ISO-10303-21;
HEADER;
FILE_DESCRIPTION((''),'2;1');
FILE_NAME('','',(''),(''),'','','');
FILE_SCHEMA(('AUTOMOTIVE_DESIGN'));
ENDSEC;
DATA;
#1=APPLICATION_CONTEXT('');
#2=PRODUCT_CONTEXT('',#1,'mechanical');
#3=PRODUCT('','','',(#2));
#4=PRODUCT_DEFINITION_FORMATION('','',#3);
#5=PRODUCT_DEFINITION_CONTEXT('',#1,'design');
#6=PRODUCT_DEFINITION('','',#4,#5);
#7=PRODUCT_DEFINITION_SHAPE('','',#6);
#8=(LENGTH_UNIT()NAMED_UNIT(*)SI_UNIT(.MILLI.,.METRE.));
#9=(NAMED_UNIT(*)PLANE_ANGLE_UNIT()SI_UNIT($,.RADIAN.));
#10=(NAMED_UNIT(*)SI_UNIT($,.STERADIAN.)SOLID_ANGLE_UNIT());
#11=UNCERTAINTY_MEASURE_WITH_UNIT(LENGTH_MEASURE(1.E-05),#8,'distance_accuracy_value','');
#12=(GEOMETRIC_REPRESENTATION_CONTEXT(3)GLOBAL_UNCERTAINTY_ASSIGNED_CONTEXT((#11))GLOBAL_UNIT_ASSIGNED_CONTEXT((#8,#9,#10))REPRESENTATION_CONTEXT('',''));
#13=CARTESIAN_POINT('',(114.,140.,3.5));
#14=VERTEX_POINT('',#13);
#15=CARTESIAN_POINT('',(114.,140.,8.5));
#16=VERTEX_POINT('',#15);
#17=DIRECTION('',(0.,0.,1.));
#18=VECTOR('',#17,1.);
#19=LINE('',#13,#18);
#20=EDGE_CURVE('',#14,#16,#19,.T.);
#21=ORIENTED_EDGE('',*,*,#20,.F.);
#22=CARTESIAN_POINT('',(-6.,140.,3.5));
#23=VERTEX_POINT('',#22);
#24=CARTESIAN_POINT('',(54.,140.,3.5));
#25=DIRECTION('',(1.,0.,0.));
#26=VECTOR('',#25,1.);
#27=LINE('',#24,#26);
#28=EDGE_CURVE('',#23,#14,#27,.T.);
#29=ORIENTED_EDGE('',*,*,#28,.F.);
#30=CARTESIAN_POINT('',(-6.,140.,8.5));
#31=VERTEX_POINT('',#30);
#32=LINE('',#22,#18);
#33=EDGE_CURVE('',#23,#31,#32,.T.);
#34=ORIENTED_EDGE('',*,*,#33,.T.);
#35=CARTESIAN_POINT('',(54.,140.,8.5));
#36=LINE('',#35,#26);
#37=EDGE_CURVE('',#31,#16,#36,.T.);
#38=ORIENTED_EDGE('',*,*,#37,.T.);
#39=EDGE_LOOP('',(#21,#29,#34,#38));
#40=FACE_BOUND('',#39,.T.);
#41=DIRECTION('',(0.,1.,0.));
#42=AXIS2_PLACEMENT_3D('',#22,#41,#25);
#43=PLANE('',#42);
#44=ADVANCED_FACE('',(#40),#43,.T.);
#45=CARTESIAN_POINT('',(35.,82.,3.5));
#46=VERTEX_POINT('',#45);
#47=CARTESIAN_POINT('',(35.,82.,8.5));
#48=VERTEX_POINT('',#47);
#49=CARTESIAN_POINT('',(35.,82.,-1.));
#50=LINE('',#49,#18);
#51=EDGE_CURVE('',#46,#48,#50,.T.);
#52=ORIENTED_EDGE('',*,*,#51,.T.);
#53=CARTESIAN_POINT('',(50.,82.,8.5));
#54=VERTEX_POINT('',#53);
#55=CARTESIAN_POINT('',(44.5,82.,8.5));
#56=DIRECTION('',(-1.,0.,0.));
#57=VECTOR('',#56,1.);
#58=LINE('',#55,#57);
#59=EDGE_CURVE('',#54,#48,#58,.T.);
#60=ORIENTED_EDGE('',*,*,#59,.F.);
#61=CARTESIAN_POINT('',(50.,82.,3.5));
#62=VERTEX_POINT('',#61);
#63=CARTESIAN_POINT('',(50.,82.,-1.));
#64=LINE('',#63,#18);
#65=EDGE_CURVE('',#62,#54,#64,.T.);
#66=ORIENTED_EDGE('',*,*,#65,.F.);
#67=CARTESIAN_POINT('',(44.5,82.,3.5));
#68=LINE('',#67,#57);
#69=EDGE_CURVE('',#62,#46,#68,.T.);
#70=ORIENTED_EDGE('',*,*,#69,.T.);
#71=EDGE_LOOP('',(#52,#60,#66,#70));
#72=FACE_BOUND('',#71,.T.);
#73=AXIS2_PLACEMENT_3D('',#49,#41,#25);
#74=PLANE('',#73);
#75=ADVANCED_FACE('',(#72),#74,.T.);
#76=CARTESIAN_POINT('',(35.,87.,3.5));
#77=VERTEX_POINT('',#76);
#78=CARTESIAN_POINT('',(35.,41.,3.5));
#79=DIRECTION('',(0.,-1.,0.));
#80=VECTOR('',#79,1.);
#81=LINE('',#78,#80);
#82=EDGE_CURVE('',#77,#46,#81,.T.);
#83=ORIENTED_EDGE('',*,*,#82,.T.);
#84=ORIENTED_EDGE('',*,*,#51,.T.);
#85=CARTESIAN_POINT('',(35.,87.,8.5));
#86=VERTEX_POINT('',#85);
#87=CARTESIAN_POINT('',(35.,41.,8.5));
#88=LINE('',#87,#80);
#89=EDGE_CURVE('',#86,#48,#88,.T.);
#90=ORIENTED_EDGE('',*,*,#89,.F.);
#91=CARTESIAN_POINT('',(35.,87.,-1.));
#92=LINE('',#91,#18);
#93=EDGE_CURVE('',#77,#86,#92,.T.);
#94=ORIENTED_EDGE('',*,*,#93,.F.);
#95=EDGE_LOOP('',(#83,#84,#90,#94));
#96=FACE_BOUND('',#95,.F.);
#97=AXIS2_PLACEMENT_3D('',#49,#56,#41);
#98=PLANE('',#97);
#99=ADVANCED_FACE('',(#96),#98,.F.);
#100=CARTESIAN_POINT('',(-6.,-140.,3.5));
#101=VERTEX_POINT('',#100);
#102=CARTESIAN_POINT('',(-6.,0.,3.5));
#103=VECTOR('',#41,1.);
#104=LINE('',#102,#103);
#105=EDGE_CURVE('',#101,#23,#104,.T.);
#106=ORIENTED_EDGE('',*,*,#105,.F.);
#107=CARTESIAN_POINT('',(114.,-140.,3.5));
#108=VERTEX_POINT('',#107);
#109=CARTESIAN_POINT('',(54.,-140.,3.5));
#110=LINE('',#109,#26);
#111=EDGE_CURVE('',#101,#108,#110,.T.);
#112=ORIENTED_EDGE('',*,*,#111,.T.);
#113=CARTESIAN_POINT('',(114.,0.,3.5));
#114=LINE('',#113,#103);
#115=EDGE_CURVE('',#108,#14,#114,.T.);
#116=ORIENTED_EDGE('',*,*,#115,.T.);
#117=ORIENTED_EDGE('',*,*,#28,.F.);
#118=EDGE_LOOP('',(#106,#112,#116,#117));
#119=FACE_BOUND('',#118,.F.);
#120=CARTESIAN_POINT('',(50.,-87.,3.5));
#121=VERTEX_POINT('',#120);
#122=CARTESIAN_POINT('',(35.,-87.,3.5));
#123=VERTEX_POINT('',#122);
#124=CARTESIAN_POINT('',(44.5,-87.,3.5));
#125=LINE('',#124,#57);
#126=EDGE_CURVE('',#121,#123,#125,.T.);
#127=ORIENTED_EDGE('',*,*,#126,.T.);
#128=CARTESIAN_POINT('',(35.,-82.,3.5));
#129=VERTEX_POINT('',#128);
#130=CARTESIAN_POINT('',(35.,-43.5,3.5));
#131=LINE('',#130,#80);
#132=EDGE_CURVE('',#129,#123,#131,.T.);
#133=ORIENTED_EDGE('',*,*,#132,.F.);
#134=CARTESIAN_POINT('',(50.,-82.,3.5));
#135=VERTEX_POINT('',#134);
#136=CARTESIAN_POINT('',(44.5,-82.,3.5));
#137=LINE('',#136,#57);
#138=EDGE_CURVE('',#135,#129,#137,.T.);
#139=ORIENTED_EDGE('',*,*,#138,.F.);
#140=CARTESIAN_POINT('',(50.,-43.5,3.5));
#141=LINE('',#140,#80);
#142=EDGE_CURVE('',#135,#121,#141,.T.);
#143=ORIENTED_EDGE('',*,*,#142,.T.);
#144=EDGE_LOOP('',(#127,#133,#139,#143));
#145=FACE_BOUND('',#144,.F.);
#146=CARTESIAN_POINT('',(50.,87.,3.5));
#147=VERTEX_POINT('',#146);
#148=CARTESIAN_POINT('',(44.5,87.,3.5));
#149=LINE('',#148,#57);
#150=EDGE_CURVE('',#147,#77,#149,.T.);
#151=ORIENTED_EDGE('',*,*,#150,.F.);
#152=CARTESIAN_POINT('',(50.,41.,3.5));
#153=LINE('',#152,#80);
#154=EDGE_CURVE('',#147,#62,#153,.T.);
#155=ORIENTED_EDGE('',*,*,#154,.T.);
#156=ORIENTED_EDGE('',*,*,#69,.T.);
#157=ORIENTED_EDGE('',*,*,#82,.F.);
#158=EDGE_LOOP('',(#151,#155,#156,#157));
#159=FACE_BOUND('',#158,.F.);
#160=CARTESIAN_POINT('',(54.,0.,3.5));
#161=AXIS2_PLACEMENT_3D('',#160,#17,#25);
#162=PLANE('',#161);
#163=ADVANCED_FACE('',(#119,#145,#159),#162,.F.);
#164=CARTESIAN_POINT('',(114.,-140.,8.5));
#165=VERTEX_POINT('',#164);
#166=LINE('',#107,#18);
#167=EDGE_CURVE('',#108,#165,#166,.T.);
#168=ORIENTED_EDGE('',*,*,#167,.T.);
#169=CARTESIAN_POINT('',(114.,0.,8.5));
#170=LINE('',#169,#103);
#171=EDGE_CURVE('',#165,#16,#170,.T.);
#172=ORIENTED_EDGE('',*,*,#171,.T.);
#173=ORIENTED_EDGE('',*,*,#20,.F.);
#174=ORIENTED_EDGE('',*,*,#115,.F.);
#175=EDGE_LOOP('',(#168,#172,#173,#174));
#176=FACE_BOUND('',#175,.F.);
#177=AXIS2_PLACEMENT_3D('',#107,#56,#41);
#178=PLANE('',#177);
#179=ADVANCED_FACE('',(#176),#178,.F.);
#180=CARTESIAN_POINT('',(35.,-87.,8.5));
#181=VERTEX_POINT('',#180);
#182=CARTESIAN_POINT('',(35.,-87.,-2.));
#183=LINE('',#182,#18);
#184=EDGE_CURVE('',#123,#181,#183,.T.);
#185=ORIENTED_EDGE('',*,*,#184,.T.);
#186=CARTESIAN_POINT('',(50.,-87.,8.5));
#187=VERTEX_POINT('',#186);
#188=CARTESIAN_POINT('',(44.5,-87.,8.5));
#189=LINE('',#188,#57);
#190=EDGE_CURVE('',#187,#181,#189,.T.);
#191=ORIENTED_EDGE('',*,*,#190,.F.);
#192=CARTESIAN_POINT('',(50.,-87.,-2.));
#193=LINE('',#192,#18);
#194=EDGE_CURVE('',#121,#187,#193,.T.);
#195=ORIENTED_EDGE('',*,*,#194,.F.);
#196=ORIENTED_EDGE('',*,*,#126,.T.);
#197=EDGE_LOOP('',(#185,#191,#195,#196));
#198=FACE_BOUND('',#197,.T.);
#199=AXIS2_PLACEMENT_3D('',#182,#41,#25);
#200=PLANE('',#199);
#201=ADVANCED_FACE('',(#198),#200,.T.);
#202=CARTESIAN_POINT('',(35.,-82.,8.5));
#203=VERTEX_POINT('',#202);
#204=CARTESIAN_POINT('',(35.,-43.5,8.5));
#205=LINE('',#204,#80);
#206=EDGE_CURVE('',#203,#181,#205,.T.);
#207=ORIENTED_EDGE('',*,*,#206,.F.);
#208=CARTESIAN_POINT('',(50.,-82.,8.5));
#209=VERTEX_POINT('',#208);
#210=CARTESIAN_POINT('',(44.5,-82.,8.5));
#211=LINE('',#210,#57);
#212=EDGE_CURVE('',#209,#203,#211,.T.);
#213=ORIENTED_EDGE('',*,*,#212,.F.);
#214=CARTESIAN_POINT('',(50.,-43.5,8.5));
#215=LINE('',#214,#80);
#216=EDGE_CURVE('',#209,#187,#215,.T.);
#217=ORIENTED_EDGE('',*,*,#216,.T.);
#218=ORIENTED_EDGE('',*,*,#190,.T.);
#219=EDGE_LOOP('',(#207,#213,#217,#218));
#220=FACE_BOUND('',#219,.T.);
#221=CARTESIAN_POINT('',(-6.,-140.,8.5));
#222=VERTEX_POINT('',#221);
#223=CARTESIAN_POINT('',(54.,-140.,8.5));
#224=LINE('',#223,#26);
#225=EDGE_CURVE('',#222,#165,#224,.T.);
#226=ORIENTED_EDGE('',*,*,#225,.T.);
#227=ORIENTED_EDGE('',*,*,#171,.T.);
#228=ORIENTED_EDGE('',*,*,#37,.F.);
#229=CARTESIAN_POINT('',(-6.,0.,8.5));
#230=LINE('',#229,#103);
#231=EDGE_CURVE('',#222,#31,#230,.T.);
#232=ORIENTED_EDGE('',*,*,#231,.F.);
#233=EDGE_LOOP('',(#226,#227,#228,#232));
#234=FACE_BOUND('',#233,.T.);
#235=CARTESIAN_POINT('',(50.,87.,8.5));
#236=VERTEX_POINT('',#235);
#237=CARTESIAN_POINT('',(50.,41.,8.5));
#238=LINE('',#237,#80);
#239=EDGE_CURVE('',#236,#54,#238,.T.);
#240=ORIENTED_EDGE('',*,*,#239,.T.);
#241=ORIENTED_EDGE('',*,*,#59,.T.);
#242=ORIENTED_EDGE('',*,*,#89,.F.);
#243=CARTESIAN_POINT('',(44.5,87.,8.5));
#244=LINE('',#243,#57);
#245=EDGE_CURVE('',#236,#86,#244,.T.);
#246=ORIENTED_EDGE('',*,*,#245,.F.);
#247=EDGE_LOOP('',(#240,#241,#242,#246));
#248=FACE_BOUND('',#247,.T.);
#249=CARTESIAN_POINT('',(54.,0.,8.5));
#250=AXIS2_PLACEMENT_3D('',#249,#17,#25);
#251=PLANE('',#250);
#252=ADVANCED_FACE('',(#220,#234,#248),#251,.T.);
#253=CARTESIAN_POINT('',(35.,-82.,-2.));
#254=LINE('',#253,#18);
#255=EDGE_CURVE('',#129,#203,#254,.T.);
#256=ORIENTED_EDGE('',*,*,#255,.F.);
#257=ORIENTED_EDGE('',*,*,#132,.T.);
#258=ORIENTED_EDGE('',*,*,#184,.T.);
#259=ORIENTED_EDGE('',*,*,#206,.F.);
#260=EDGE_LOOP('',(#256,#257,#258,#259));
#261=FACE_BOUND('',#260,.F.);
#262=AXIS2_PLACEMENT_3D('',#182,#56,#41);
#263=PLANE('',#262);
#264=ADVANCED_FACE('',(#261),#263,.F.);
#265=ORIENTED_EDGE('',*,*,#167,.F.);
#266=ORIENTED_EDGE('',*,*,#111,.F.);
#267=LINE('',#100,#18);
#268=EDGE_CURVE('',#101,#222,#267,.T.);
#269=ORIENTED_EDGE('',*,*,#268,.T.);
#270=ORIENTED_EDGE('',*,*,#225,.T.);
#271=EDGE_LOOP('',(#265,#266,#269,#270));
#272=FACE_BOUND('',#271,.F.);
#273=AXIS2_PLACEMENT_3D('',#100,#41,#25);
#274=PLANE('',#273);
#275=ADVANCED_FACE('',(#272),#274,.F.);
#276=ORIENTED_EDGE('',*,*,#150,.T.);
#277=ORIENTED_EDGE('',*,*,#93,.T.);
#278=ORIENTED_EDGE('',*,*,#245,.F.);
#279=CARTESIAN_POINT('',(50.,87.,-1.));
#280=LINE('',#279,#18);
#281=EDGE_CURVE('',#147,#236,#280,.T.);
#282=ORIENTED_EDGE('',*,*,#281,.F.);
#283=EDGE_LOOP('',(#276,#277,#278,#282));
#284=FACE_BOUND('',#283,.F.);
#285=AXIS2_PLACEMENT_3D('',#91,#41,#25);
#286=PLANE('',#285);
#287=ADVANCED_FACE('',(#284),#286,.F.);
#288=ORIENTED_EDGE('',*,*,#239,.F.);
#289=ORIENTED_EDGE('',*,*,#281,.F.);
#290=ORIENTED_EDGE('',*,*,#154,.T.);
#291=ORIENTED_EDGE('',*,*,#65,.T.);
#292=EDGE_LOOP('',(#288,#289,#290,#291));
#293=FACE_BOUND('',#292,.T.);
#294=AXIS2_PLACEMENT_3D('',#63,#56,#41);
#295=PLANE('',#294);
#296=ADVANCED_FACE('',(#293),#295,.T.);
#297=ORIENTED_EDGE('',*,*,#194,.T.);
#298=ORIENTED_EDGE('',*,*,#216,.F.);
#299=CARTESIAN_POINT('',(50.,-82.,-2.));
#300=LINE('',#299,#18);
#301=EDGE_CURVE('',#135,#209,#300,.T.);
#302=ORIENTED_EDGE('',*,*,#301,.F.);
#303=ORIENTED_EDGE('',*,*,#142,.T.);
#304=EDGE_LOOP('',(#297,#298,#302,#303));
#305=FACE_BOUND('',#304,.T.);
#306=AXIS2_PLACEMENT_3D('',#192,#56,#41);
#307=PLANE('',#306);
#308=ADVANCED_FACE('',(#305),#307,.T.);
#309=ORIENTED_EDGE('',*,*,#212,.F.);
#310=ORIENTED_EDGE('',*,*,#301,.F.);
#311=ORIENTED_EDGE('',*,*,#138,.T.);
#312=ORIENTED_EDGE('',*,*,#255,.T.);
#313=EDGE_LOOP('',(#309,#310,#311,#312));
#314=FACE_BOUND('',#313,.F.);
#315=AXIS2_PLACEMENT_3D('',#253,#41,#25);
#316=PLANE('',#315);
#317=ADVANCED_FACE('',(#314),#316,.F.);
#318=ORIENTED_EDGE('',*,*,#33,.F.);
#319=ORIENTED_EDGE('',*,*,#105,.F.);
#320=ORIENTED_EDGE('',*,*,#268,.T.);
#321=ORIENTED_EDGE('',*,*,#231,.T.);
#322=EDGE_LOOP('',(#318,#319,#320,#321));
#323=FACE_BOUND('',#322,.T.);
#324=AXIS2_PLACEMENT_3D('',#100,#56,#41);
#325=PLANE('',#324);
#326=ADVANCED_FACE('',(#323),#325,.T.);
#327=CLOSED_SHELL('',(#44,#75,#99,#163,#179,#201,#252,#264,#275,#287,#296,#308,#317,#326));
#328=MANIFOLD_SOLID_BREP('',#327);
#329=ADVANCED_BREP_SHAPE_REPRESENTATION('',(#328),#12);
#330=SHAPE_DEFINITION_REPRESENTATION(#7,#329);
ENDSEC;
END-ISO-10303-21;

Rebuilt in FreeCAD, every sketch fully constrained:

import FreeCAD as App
import Part
import Sketcher
from FreeCAD import Vector
Q = App.Units.Quantity


def add_polygon(sketch, points):
    """Adds a closed chain of lines whose ends are joined by coincident constraints."""
    first, n = sketch.GeometryCount, len(points)
    for a, b in zip(points, points[1:] + points[:1]):
        sketch.addGeometry(Part.LineSegment(App.Vector(*a, 0), App.Vector(*b, 0)), False)
    for i in range(n):
        sketch.addConstraint(Sketcher.Constraint("Coincident", first + i, 2, first + (i + 1) % n, 1))

doc = App.newDocument("Part")
body = doc.addObject("PartDesign::Body", "Body")

sketch1 = body.newObject("Sketcher::SketchObject", "Sketch")
sketch1.AttachmentSupport = (doc.getObject("XY_Plane"), [""])
sketch1.MapMode = "FlatFace"
sketch1.AttachmentOffset = App.Placement(Vector(0, 0, 69), App.Rotation())
add_polygon(sketch1, [(35, 87), (35, 82), (50, 82), (50, 87)])
sketch1.addConstraint([
    Sketcher.Constraint("Vertical", 0),
    Sketcher.Constraint("Horizontal", 1),
    Sketcher.Constraint("Vertical", 2),
    Sketcher.Constraint("Horizontal", 3),
    Sketcher.Constraint("DistanceX", 1, 1, 1, 2, Q("15 mm")),
    Sketcher.Constraint("DistanceY", 0, 2, 0, 1, Q("5 mm")),
    Sketcher.Constraint("DistanceX", -1, 1, 0, 2, Q("35 mm")),
    Sketcher.Constraint("DistanceY", -1, 1, 0, 2, Q("82 mm")),
])
pad1 = body.newObject("PartDesign::Pad", "Pad")
pad1.Profile = sketch1
pad1.Length = 16
body2 = doc.addObject("PartDesign::Body", "Body001")

sketch2 = body2.newObject("Sketcher::SketchObject", "Sketch001")
sketch2.AttachmentSupport = (doc.getObject("XY_Plane001"), [""])
sketch2.MapMode = "FlatFace"
sketch2.AttachmentOffset = App.Placement(Vector(0, 0, 68), App.Rotation())
add_polygon(sketch2, [(35, -82), (35, -87), (50, -87), (50, -82)])
sketch2.addConstraint([
    Sketcher.Constraint("Vertical", 0),
    Sketcher.Constraint("Horizontal", 1),
    Sketcher.Constraint("Vertical", 2),
    Sketcher.Constraint("Horizontal", 3),
    Sketcher.Constraint("DistanceX", 1, 1, 1, 2, Q("15 mm")),
    Sketcher.Constraint("DistanceY", 0, 2, 0, 1, Q("5 mm")),
    Sketcher.Constraint("DistanceX", -1, 1, 0, 2, Q("35 mm")),
    Sketcher.Constraint("DistanceY", 0, 2, -1, 1, Q("87 mm")),
])
pad2 = body2.newObject("PartDesign::Pad", "Pad001")
pad2.Profile = sketch2
pad2.Length = 16
body3 = doc.addObject("PartDesign::Body", "Body002")

sketch3 = body3.newObject("Sketcher::SketchObject", "Sketch002")
sketch3.AttachmentSupport = (doc.getObject("XY_Plane002"), [""])
sketch3.MapMode = "FlatFace"
sketch3.AttachmentOffset = App.Placement(Vector(0, 0, 73.5), App.Rotation())
add_polygon(sketch3, [(-6, 140), (-6, -140), (114, -140), (114, 140)])
sketch3.addConstraint([
    Sketcher.Constraint("Vertical", 0),
    Sketcher.Constraint("Horizontal", 1),
    Sketcher.Constraint("Vertical", 2),
    Sketcher.Constraint("Horizontal", 3),
    Sketcher.Constraint("DistanceX", 1, 1, 1, 2, Q("120 mm")),
    Sketcher.Constraint("DistanceY", 0, 2, 0, 1, Q("280 mm")),
    Sketcher.Constraint("DistanceX", 0, 2, -1, 1, Q("6 mm")),
    Sketcher.Constraint("DistanceY", 0, 2, -1, 1, Q("140 mm")),
])
pad3 = body3.newObject("PartDesign::Pad", "Pad002")
pad3.Profile = sketch3
pad3.Length = 5
doc.recompute()

boolean = body3.newObject("PartDesign::Boolean", "Boolean")
boolean.Type = "Cut"
boolean.addObjects([body2])
doc.recompute()

boolean2 = body3.newObject("PartDesign::Boolean", "Boolean001")
boolean2.Type = "Cut"
boolean2.addObjects([body])
body4 = doc.addObject("PartDesign::Body", "Body003")
doc.recompute()

body3.Placement = App.Placement(Vector(0, 0, -70), App.Rotation(Vector(0, 0, 1), 0))
boolean3 = body4.newObject("PartDesign::Boolean", "Boolean002")
boolean3.Type = "Fuse"
boolean3.addObjects([body3])

doc.recompute()
